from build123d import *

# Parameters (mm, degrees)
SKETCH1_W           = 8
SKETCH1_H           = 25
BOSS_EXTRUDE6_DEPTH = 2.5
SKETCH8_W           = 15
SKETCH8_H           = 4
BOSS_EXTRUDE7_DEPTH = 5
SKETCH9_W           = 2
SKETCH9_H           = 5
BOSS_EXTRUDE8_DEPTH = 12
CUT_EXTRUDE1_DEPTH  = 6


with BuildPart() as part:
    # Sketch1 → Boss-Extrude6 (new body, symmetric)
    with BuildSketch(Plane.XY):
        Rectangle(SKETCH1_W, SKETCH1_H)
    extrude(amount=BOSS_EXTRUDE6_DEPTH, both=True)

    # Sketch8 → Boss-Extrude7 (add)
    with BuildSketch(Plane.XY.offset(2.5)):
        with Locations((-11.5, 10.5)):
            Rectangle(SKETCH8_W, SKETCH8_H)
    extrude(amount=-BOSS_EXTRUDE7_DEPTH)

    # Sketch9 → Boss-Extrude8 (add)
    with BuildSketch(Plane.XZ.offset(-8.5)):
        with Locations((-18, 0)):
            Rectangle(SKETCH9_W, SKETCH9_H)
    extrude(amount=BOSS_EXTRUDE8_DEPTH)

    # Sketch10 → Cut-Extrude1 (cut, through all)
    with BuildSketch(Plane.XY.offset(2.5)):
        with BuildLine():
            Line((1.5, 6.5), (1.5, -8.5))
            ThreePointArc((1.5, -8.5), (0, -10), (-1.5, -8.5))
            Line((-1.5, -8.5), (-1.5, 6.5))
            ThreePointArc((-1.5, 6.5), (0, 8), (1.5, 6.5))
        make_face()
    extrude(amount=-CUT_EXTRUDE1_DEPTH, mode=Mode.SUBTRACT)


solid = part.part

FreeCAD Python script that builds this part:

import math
import FreeCAD as App
import Part
import Sketcher

doc = App.newDocument("Part")
body = doc.addObject("PartDesign::Body", "Body")

sketch1 = body.newObject("Sketcher::SketchObject", "Sketch")
sketch1.AttachmentSupport = (doc.getObject("XY_Plane"), [""])
sketch1.MapMode = "FlatFace"
sketch1.addGeometry(Part.LineSegment(App.Vector(-4, 12, 0), App.Vector(-4, -12, 0)), False)
sketch1.addGeometry(Part.LineSegment(App.Vector(-4, -12, 0), App.Vector(4, -12, 0)), False)
sketch1.addGeometry(Part.LineSegment(App.Vector(4, -12, 0), App.Vector(4, 12, 0)), False)
sketch1.addGeometry(Part.LineSegment(App.Vector(4, 12, 0), App.Vector(-4, 12, 0)), False)
sketch1.addConstraint(Sketcher.Constraint("Coincident", 0, 2, 1, 1))
sketch1.addConstraint(Sketcher.Constraint("Coincident", 1, 2, 2, 1))
sketch1.addConstraint(Sketcher.Constraint("Coincident", 2, 2, 3, 1))
sketch1.addConstraint(Sketcher.Constraint("Coincident", 3, 2, 0, 1))
sketch1.addConstraint(Sketcher.Constraint("Vertical", 0))
sketch1.addConstraint(Sketcher.Constraint("Horizontal", 1))
sketch1.addConstraint(Sketcher.Constraint("Vertical", 2))
sketch1.addConstraint(Sketcher.Constraint("Horizontal", 3))
sketch1.addConstraint(Sketcher.Constraint("Symmetric", 0, 2, 2, 2, -1, 1))
sketch1.addConstraint(Sketcher.Constraint("DistanceX", 1, 1, 1, 2, 8.0))
sketch1.addConstraint(Sketcher.Constraint("DistanceY", 0, 2, 0, 1, 25.0))
pad1 = body.newObject("PartDesign::Pad", "Pad")
pad1.Profile = sketch1
pad1.Length = 5
pad1.Midplane = True

sketch2 = body.newObject("Sketcher::SketchObject", "Sketch001")
sketch2.AttachmentSupport = (doc.getObject("XY_Plane"), [""])
sketch2.MapMode = "FlatFace"
sketch2.AttachmentOffset = App.Placement(App.Vector(0, 0, 2.5), App.Rotation())
sketch2.addGeometry(Part.LineSegment(App.Vector(-19, 12.5, 0), App.Vector(-19, 8.5, 0)), False)
sketch2.addGeometry(Part.LineSegment(App.Vector(-19, 8.5, 0), App.Vector(-4, 8.5, 0)), False)
sketch2.addGeometry(Part.LineSegment(App.Vector(-4, 8.5, 0), App.Vector(-4, 12.5, 0)), False)
sketch2.addGeometry(Part.LineSegment(App.Vector(-4, 12.5, 0), App.Vector(-19, 12.5, 0)), False)
sketch2.addConstraint(Sketcher.Constraint("Coincident", 0, 2, 1, 1))
sketch2.addConstraint(Sketcher.Constraint("Coincident", 1, 2, 2, 1))
sketch2.addConstraint(Sketcher.Constraint("Coincident", 2, 2, 3, 1))
sketch2.addConstraint(Sketcher.Constraint("Coincident", 3, 2, 0, 1))
sketch2.addConstraint(Sketcher.Constraint("Vertical", 0))
sketch2.addConstraint(Sketcher.Constraint("Horizontal", 1))
sketch2.addConstraint(Sketcher.Constraint("Vertical", 2))
sketch2.addConstraint(Sketcher.Constraint("Horizontal", 3))
sketch2.addConstraint(Sketcher.Constraint("DistanceX", 1, 1, 1, 2, 15.0))
sketch2.addConstraint(Sketcher.Constraint("DistanceY", 0, 2, 0, 1, 4.0))
sketch2.addConstraint(Sketcher.Constraint("DistanceX", 0, 2, -1, 1, 19.0))
sketch2.addConstraint(Sketcher.Constraint("DistanceY", -1, 1, 0, 2, 8.5))
pad2 = body.newObject("PartDesign::Pad", "Pad001")
pad2.Profile = sketch2
pad2.Length = 5
pad2.Reversed = True

sketch3 = body.newObject("Sketcher::SketchObject", "Sketch002")
sketch3.AttachmentSupport = (doc.getObject("XZ_Plane"), [""])
sketch3.MapMode = "FlatFace"
sketch3.AttachmentOffset = App.Placement(App.Vector(0, 0, -8.5), App.Rotation())
sketch3.addGeometry(Part.LineSegment(App.Vector(-19, 2.5, 0), App.Vector(-19, -2.5, 0)), False)
sketch3.addGeometry(Part.LineSegment(App.Vector(-19, -2.5, 0), App.Vector(-17, -2.5, 0)), False)
sketch3.addGeometry(Part.LineSegment(App.Vector(-17, -2.5, 0), App.Vector(-17, 2.5, 0)), False)
sketch3.addGeometry(Part.LineSegment(App.Vector(-17, 2.5, 0), App.Vector(-19, 2.5, 0)), False)
sketch3.addConstraint(Sketcher.Constraint("Coincident", 0, 2, 1, 1))
sketch3.addConstraint(Sketcher.Constraint("Coincident", 1, 2, 2, 1))
sketch3.addConstraint(Sketcher.Constraint("Coincident", 2, 2, 3, 1))
sketch3.addConstraint(Sketcher.Constraint("Coincident", 3, 2, 0, 1))
sketch3.addConstraint(Sketcher.Constraint("Vertical", 0))
sketch3.addConstraint(Sketcher.Constraint("Horizontal", 1))
sketch3.addConstraint(Sketcher.Constraint("Vertical", 2))
sketch3.addConstraint(Sketcher.Constraint("Horizontal", 3))
sketch3.addConstraint(Sketcher.Constraint("DistanceX", 1, 1, 1, 2, 2.0))
sketch3.addConstraint(Sketcher.Constraint("DistanceY", 0, 2, 0, 1, 5.0))
sketch3.addConstraint(Sketcher.Constraint("DistanceX", 0, 2, -1, 1, 19.0))
sketch3.addConstraint(Sketcher.Constraint("DistanceY", 0, 2, -1, 1, 2.5))
pad3 = body.newObject("PartDesign::Pad", "Pad002")
pad3.Profile = sketch3
pad3.Length = 12

sketch4 = body.newObject("Sketcher::SketchObject", "Sketch003")
sketch4.AttachmentSupport = (doc.getObject("XY_Plane"), [""])
sketch4.MapMode = "FlatFace"
sketch4.AttachmentOffset = App.Placement(App.Vector(0, 0, 2.5), App.Rotation())
sketch4.addGeometry(Part.LineSegment(App.Vector(1.5, -8.5, 0), App.Vector(1.5, 6.5, 0)), False)
sketch4.addGeometry(Part.ArcOfCircle(Part.Circle(App.Vector(0, 6.5, 0), App.Vector(0, 0, 1), 1.5), math.radians(0), math.radians(180)), False)
sketch4.addGeometry(Part.LineSegment(App.Vector(-1.5, 6.5, 0), App.Vector(-1.5, -8.5, 0)), False)
sketch4.addGeometry(Part.ArcOfCircle(Part.Circle(App.Vector(0, -8.5, 0), App.Vector(0, 0, 1), 1.5), math.radians(180), math.radians(360)), False)
sketch4.addConstraint(Sketcher.Constraint("Tangent", 0, 2, 1, 1))
sketch4.addConstraint(Sketcher.Constraint("Tangent", 1, 2, 2, 1))
sketch4.addConstraint(Sketcher.Constraint("Tangent", 2, 2, 3, 1))
sketch4.addConstraint(Sketcher.Constraint("Tangent", 3, 2, 0, 1))
sketch4.addConstraint(Sketcher.Constraint("Vertical", 0))
sketch4.addConstraint(Sketcher.Constraint("Vertical", 2))
sketch4.addConstraint(Sketcher.Constraint("PointOnObject", 1, 3, -2))
sketch4.addConstraint(Sketcher.Constraint("Radius", 1, 1.5))
sketch4.addConstraint(Sketcher.Constraint("DistanceY", 0, 1, 0, 2, 15.0))
sketch4.addConstraint(Sketcher.Constraint("DistanceY", -1, 1, 1, 3, 6.5))
pocket1 = body.newObject("PartDesign::Pocket", "Pocket")
pocket1.Profile = sketch4
pocket1.Type = "ThroughAll"

doc.recompute()
